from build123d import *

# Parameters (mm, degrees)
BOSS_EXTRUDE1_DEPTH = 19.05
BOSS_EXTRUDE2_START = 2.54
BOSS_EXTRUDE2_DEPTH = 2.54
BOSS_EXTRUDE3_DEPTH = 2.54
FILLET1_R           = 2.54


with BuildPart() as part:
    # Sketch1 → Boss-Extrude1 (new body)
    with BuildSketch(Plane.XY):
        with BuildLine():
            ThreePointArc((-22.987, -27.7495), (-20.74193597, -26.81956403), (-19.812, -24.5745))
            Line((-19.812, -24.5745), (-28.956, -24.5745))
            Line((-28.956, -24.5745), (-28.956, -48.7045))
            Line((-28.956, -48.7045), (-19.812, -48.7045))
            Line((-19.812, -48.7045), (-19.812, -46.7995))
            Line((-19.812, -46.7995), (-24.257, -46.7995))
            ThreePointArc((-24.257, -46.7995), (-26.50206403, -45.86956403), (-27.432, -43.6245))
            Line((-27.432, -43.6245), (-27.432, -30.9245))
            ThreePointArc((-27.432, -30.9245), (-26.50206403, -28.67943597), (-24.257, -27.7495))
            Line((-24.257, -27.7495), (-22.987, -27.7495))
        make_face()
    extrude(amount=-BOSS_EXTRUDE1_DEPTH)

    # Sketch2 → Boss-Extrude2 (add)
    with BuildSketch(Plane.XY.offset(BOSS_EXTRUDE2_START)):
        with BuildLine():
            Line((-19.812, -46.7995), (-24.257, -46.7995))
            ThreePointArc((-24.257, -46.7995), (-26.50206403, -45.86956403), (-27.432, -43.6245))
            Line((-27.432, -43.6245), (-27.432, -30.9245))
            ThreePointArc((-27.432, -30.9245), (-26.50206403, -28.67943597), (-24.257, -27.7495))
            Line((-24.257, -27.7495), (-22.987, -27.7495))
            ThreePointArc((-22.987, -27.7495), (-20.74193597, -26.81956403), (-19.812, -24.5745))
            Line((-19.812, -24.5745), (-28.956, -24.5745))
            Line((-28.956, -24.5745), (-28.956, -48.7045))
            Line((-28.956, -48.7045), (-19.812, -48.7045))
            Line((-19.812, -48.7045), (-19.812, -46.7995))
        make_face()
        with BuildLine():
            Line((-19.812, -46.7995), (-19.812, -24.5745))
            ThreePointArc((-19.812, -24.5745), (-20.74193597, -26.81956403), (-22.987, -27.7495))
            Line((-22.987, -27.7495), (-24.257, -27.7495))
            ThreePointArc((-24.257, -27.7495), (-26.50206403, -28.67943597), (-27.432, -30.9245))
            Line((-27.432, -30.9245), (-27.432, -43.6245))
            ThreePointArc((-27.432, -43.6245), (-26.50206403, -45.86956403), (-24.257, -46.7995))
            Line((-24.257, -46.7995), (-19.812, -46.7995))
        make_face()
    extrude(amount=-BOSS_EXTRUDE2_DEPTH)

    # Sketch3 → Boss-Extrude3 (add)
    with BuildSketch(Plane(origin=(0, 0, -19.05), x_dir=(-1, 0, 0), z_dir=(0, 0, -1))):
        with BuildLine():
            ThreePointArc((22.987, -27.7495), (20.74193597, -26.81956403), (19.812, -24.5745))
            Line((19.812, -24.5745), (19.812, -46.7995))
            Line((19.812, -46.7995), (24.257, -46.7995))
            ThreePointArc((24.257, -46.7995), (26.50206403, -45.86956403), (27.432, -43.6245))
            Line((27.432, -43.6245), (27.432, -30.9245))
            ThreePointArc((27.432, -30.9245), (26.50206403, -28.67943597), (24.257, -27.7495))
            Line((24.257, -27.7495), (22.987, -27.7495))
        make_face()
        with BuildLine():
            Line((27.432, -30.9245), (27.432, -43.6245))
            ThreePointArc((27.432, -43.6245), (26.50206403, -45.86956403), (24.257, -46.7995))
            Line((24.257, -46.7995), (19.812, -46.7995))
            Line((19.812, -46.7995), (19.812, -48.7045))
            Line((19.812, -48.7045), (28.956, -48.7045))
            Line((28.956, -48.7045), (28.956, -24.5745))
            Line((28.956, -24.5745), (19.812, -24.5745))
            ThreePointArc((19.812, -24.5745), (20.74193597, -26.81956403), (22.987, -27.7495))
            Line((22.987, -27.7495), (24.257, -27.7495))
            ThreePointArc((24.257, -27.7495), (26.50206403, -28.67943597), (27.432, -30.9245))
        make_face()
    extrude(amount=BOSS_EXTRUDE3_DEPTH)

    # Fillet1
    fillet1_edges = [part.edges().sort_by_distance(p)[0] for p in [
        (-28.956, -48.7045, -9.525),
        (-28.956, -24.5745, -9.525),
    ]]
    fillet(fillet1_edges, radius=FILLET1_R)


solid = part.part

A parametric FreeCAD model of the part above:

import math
import FreeCAD as App
import Part
import Sketcher
from FreeCAD import Vector
Q = App.Units.Quantity


def edges_at(feature, points):
    """Names of the edges that pass closest to the given points."""
    edges = feature.Shape.Edges
    near = lambda p: min(range(len(edges)), key=lambda i: edges[i].distToShape(Part.Vertex(*p))[0])
    return sorted({f"Edge{near(p) + 1}" for p in points})

doc = App.newDocument("Part")
params = doc.addObject("Spreadsheet::Sheet", "Params")
for row, (alias, value) in enumerate([
    ("sketch1_height", "0.5 in"),
    ("sketch1_radius", "0.125 in"),
    ("sketch1_width", "0.36 in"),
    ("sketch1_width2", "0.05 in"),
    ("sketch1_height2", "0.95 in"),
    ("pad1_length", "0.75 in"),
    ("sketch2_width", "0.36 in"),
    ("sketch2_height", "0.95 in"),
    ("pad2_length", "0.1 in"),
    ("sketch3_width", "0.36 in"),
    ("sketch3_height", "0.95 in"),
    ("pad3_length", "0.1 in"),
    ("fillet_radius", "0.1 in"),
], start=1):
    params.set(f"A{row}", alias)
    params.set(f"B{row}", "=" + value)
    params.setAlias(f"B{row}", alias)

body = doc.addObject("PartDesign::Body", "Body")

# Sketch on XY plane
sketch1 = body.newObject("Sketcher::SketchObject", "Sketch")
sketch1.AttachmentSupport = (doc.getObject("XY_Plane"), [""])
sketch1.MapMode = "FlatFace"
sketch1.addGeometry(Part.ArcOfCircle(Part.Circle(Vector(-23, -24.6, 0), Vector(0, 0, 1), 3.2), math.radians(-90), math.radians(0)), False)
sketch1.addGeometry(Part.LineSegment(Vector(-19.8, -24.6, 0), Vector(-29, -24.6, 0)), False)
sketch1.addGeometry(Part.LineSegment(Vector(-29, -24.6, 0), Vector(-29, -48.7, 0)), False)
sketch1.addGeometry(Part.LineSegment(Vector(-29, -48.7, 0), Vector(-19.8, -48.7, 0)), False)
sketch1.addGeometry(Part.LineSegment(Vector(-19.8, -48.7, 0), Vector(-19.8, -46.8, 0)), False)
sketch1.addGeometry(Part.LineSegment(Vector(-19.8, -46.8, 0), Vector(-24.3, -46.8, 0)), False)
sketch1.addGeometry(Part.ArcOfCircle(Part.Circle(Vector(-24.3, -43.6, 0), Vector(0, 0, 1), 3.2), math.radians(-180), math.radians(-90)), False)
sketch1.addGeometry(Part.LineSegment(Vector(-27.4, -43.6, 0), Vector(-27.4, -30.9, 0)), False)
sketch1.addGeometry(Part.ArcOfCircle(Part.Circle(Vector(-24.3, -30.9, 0), Vector(0, 0, 1), 3.2), math.radians(90), math.radians(180)), False)
sketch1.addGeometry(Part.LineSegment(Vector(-24.3, -27.7, 0), Vector(-23, -27.7, 0)), False)
sketch1.addConstraint(Sketcher.Constraint("Coincident", 0, 2, 1, 1))
sketch1.addConstraint(Sketcher.Constraint("Coincident", 1, 2, 2, 1))
sketch1.addConstraint(Sketcher.Constraint("Coincident", 2, 2, 3, 1))
sketch1.addConstraint(Sketcher.Constraint("Coincident", 3, 2, 4, 1))
sketch1.addConstraint(Sketcher.Constraint("Coincident", 4, 2, 5, 1))
sketch1.addConstraint(Sketcher.Constraint("Tangent", 5, 2, 6, 2))
sketch1.addConstraint(Sketcher.Constraint("Tangent", 6, 1, 7, 1))
sketch1.addConstraint(Sketcher.Constraint("Tangent", 7, 2, 8, 2))
sketch1.addConstraint(Sketcher.Constraint("Tangent", 8, 1, 9, 1))
sketch1.addConstraint(Sketcher.Constraint("Tangent", 9, 2, 0, 1))
sketch1.addConstraint(Sketcher.Constraint("Horizontal", 1))
sketch1.addConstraint(Sketcher.Constraint("Vertical", 2))
sketch1.addConstraint(Sketcher.Constraint("Horizontal", 3))
sketch1.addConstraint(Sketcher.Constraint("Vertical", 4))
sketch1.addConstraint(Sketcher.Constraint("Horizontal", 5))
sketch1.addConstraint(Sketcher.Constraint("Vertical", 7))
sketch1.addConstraint(Sketcher.Constraint("Horizontal", 9))
sketch1.addConstraint(Sketcher.Constraint("Equal", 0, 6))
sketch1.addConstraint(Sketcher.Constraint("Equal", 6, 8))
sketch1.addConstraint(Sketcher.Constraint("Vertical", 0, 2, 3, 2))
sketch1.addConstraint(Sketcher.Constraint("DistanceY", 7, 1, 7, 2, Q("0.5 in")))
sketch1.addConstraint(Sketcher.Constraint("Radius", 0, Q("0.125 in")))
sketch1.addConstraint(Sketcher.Constraint("DistanceX", 1, 2, 1, 1, Q("0.36 in")))
sketch1.addConstraint(Sketcher.Constraint("DistanceX", 9, 1, 9, 2, Q("0.05 in")))
sketch1.addConstraint(Sketcher.Constraint("DistanceY", 2, 2, 2, 1, Q("0.95 in")))
sketch1.addConstraint(Sketcher.Constraint("DistanceY", 2, 2, 6, 3, Q("0.2 in")))
sketch1.addConstraint(Sketcher.Constraint("DistanceX", 0, 2, -1, 1, Q("0.78 in")))
sketch1.addConstraint(Sketcher.Constraint("DistanceY", 0, 3, -1, 1, Q("0.9675 in")))
sketch1.setExpression("Constraints[20]", "Params.sketch1_height")
sketch1.setExpression("Constraints[21]", "Params.sketch1_radius")
sketch1.setExpression("Constraints[22]", "Params.sketch1_width")
sketch1.setExpression("Constraints[23]", "Params.sketch1_width2")
sketch1.setExpression("Constraints[24]", "Params.sketch1_height2")
pad1 = body.newObject("PartDesign::Pad", "Pad")
pad1.Profile = sketch1
pad1.setExpression("Length", "Params.pad1_length")
pad1.Reversed = True

# Sketch on XY plane
sketch2 = body.newObject("Sketcher::SketchObject", "Sketch001")
sketch2.AttachmentSupport = (doc.getObject("XY_Plane"), [""])
sketch2.MapMode = "FlatFace"
sketch2.AttachmentOffset = App.Placement(Vector(0, 0, 0.1 * 25.4), App.Rotation())
sketch2.addGeometry(Part.LineSegment(Vector(-20, -25, 0), Vector(-29, -25, 0)), False)
sketch2.addGeometry(Part.LineSegment(Vector(-29, -25, 0), Vector(-29, -49, 0)), False)
sketch2.addGeometry(Part.LineSegment(Vector(-29, -49, 0), Vector(-20, -49, 0)), False)
sketch2.addGeometry(Part.LineSegment(Vector(-20, -49, 0), Vector(-20, -25, 0)), False)
sketch2.addConstraint(Sketcher.Constraint("Coincident", 0, 2, 1, 1))
sketch2.addConstraint(Sketcher.Constraint("Coincident", 1, 2, 2, 1))
sketch2.addConstraint(Sketcher.Constraint("Coincident", 2, 2, 3, 1))
sketch2.addConstraint(Sketcher.Constraint("Coincident", 3, 2, 0, 1))
sketch2.addConstraint(Sketcher.Constraint("Horizontal", 0))
sketch2.addConstraint(Sketcher.Constraint("Vertical", 1))
sketch2.addConstraint(Sketcher.Constraint("Horizontal", 2))
sketch2.addConstraint(Sketcher.Constraint("Vertical", 3))
sketch2.addConstraint(Sketcher.Constraint("DistanceX", 0, 2, 0, 1, Q("0.36 in")))
sketch2.addConstraint(Sketcher.Constraint("DistanceY", 1, 2, 1, 1, Q("0.95 in")))
sketch2.addConstraint(Sketcher.Constraint("DistanceX", 0, 2, -1, 1, Q("1.14 in")))
sketch2.addConstraint(Sketcher.Constraint("DistanceY", 0, 2, -1, 1, Q("0.9675 in")))
sketch2.setExpression("Constraints[8]", "Params.sketch2_width")
sketch2.setExpression("Constraints[9]", "Params.sketch2_height")
pad2 = body.newObject("PartDesign::Pad", "Pad001")
pad2.Profile = sketch2
pad2.setExpression("Length", "Params.pad2_length")
pad2.Reversed = True

# Sketch on XY plane
sketch3 = body.newObject("Sketcher::SketchObject", "Sketch002")
sketch3.AttachmentSupport = (doc.getObject("XY_Plane"), [""])
sketch3.MapMode = "FlatFace"
sketch3.AttachmentOffset = App.Placement(Vector(0, 0, -0.75 * 25.4), App.Rotation())
sketch3.addGeometry(Part.LineSegment(Vector(-20, -25, 0), Vector(-20, -49, 0)), False)
sketch3.addGeometry(Part.LineSegment(Vector(-20, -49, 0), Vector(-29, -49, 0)), False)
sketch3.addGeometry(Part.LineSegment(Vector(-29, -49, 0), Vector(-29, -25, 0)), False)
sketch3.addGeometry(Part.LineSegment(Vector(-29, -25, 0), Vector(-20, -25, 0)), False)
sketch3.addConstraint(Sketcher.Constraint("Coincident", 0, 2, 1, 1))
sketch3.addConstraint(Sketcher.Constraint("Coincident", 1, 2, 2, 1))
sketch3.addConstraint(Sketcher.Constraint("Coincident", 2, 2, 3, 1))
sketch3.addConstraint(Sketcher.Constraint("Coincident", 3, 2, 0, 1))
sketch3.addConstraint(Sketcher.Constraint("Vertical", 0))
sketch3.addConstraint(Sketcher.Constraint("Horizontal", 1))
sketch3.addConstraint(Sketcher.Constraint("Vertical", 2))
sketch3.addConstraint(Sketcher.Constraint("Horizontal", 3))
sketch3.addConstraint(Sketcher.Constraint("DistanceX", 1, 2, 1, 1, Q("0.36 in")))
sketch3.addConstraint(Sketcher.Constraint("DistanceY", 0, 2, 0, 1, Q("0.95 in")))
sketch3.addConstraint(Sketcher.Constraint("DistanceX", 0, 2, -1, 1, Q("0.78 in")))
sketch3.addConstraint(Sketcher.Constraint("DistanceY", 0, 2, -1, 1, Q("1.9175 in")))
sketch3.setExpression("Constraints[8]", "Params.sketch3_width")
sketch3.setExpression("Constraints[9]", "Params.sketch3_height")
pad3 = body.newObject("PartDesign::Pad", "Pad002")
pad3.Profile = sketch3
pad3.setExpression("Length", "Params.pad3_length")
pad3.Reversed = True
doc.recompute()

fillet = body.newObject("PartDesign::Fillet", "Fillet")
fillet.Base = (pad3, edges_at(pad3, [(-28.956, -48.705, -9.525), (-28.956, -24.575, -9.525)]))
fillet.setExpression("Radius", "Params.fillet_radius")

doc.recompute()
